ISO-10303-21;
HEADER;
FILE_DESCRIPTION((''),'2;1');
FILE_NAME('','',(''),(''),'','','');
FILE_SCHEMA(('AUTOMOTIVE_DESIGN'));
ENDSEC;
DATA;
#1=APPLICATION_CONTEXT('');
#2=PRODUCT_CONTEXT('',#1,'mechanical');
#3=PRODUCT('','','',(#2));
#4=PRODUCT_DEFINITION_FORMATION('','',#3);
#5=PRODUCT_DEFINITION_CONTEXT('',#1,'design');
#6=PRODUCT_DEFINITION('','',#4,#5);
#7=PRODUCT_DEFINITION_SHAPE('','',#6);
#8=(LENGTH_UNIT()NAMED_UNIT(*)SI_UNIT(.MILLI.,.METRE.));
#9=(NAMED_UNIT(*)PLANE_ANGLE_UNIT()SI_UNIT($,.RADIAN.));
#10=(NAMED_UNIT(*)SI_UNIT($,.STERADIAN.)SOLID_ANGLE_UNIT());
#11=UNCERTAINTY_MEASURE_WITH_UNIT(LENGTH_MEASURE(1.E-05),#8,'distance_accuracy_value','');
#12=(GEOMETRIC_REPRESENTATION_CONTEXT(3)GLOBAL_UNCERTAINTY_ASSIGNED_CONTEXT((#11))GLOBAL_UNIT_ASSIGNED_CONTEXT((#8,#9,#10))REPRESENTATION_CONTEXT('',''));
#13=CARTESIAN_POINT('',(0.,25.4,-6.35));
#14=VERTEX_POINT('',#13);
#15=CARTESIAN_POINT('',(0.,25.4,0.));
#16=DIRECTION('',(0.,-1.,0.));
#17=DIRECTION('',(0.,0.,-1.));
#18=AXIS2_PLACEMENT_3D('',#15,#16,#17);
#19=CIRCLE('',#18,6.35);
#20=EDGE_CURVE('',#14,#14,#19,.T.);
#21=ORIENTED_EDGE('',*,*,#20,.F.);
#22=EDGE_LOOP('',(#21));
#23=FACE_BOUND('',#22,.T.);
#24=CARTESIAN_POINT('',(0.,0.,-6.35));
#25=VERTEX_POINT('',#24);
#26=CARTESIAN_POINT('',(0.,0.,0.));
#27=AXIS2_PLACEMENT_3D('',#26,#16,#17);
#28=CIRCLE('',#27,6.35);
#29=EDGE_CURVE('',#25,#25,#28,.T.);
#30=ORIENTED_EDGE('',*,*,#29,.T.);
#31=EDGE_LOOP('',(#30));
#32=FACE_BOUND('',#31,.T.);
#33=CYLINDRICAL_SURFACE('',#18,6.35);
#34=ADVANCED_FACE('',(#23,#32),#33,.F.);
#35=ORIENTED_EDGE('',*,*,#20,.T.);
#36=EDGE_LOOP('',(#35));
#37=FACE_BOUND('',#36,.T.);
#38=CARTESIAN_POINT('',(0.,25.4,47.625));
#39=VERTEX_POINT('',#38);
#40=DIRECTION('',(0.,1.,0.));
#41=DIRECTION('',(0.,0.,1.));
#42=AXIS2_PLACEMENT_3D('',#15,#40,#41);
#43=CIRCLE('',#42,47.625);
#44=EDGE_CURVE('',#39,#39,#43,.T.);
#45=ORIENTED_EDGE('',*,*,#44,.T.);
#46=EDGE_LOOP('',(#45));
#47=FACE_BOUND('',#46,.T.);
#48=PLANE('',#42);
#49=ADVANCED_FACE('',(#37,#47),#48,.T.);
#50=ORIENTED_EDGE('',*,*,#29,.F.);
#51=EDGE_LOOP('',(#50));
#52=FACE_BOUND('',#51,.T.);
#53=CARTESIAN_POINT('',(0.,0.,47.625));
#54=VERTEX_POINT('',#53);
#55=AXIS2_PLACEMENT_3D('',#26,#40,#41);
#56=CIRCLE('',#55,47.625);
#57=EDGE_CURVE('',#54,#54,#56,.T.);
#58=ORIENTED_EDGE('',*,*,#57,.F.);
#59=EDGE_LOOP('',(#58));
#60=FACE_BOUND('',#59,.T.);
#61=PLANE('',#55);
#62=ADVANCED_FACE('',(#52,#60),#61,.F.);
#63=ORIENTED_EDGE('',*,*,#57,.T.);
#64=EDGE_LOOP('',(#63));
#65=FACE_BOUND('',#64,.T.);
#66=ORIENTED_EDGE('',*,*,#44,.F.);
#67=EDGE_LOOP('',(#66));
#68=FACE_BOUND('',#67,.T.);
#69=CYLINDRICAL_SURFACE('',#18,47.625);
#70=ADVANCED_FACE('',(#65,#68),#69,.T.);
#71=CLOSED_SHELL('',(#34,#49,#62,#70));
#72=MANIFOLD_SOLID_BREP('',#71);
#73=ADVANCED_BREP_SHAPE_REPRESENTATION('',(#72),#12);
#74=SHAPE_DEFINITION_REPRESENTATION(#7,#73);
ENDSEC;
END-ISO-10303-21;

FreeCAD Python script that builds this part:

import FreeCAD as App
import Part
import Sketcher
Q = App.Units.Quantity

doc = App.newDocument("Part")
body = doc.addObject("PartDesign::Body", "Body")

# Sketch on XZ plane
sketch1 = body.newObject("Sketcher::SketchObject", "Sketch")
sketch1.AttachmentSupport = (doc.getObject("XZ_Plane"), [""])
sketch1.MapMode = "FlatFace"
sketch1.addGeometry(Part.Circle(App.Vector(0, 0, 0), App.Vector(0, 0, 1), 48), False)
sketch1.addConstraint([
    Sketcher.Constraint("Coincident", 0, 3, -1, 1),
    Sketcher.Constraint("Diameter", 0, Q("3.75 in")),
])
pad1 = body.newObject("PartDesign::Pad", "Pad")
pad1.Profile = sketch1
pad1.Length = Q("1 in")
pad1.Reversed = True

# Sketch on XZ plane
sketch2 = body.newObject("Sketcher::SketchObject", "Sketch001")
sketch2.AttachmentSupport = (doc.getObject("XZ_Plane"), [""])
sketch2.MapMode = "FlatFace"
sketch2.addGeometry(Part.Circle(App.Vector(0, 0, 0), App.Vector(0, 0, 1), 6), False)
sketch2.addConstraint([
    Sketcher.Constraint("Coincident", 0, 3, -1, 1),
    Sketcher.Constraint("Diameter", 0, Q("0.5 in")),
])
pocket1 = body.newObject("PartDesign::Pocket", "Pocket")
pocket1.Profile = sketch2
pocket1.Length = Q("1 in")

doc.recompute()
